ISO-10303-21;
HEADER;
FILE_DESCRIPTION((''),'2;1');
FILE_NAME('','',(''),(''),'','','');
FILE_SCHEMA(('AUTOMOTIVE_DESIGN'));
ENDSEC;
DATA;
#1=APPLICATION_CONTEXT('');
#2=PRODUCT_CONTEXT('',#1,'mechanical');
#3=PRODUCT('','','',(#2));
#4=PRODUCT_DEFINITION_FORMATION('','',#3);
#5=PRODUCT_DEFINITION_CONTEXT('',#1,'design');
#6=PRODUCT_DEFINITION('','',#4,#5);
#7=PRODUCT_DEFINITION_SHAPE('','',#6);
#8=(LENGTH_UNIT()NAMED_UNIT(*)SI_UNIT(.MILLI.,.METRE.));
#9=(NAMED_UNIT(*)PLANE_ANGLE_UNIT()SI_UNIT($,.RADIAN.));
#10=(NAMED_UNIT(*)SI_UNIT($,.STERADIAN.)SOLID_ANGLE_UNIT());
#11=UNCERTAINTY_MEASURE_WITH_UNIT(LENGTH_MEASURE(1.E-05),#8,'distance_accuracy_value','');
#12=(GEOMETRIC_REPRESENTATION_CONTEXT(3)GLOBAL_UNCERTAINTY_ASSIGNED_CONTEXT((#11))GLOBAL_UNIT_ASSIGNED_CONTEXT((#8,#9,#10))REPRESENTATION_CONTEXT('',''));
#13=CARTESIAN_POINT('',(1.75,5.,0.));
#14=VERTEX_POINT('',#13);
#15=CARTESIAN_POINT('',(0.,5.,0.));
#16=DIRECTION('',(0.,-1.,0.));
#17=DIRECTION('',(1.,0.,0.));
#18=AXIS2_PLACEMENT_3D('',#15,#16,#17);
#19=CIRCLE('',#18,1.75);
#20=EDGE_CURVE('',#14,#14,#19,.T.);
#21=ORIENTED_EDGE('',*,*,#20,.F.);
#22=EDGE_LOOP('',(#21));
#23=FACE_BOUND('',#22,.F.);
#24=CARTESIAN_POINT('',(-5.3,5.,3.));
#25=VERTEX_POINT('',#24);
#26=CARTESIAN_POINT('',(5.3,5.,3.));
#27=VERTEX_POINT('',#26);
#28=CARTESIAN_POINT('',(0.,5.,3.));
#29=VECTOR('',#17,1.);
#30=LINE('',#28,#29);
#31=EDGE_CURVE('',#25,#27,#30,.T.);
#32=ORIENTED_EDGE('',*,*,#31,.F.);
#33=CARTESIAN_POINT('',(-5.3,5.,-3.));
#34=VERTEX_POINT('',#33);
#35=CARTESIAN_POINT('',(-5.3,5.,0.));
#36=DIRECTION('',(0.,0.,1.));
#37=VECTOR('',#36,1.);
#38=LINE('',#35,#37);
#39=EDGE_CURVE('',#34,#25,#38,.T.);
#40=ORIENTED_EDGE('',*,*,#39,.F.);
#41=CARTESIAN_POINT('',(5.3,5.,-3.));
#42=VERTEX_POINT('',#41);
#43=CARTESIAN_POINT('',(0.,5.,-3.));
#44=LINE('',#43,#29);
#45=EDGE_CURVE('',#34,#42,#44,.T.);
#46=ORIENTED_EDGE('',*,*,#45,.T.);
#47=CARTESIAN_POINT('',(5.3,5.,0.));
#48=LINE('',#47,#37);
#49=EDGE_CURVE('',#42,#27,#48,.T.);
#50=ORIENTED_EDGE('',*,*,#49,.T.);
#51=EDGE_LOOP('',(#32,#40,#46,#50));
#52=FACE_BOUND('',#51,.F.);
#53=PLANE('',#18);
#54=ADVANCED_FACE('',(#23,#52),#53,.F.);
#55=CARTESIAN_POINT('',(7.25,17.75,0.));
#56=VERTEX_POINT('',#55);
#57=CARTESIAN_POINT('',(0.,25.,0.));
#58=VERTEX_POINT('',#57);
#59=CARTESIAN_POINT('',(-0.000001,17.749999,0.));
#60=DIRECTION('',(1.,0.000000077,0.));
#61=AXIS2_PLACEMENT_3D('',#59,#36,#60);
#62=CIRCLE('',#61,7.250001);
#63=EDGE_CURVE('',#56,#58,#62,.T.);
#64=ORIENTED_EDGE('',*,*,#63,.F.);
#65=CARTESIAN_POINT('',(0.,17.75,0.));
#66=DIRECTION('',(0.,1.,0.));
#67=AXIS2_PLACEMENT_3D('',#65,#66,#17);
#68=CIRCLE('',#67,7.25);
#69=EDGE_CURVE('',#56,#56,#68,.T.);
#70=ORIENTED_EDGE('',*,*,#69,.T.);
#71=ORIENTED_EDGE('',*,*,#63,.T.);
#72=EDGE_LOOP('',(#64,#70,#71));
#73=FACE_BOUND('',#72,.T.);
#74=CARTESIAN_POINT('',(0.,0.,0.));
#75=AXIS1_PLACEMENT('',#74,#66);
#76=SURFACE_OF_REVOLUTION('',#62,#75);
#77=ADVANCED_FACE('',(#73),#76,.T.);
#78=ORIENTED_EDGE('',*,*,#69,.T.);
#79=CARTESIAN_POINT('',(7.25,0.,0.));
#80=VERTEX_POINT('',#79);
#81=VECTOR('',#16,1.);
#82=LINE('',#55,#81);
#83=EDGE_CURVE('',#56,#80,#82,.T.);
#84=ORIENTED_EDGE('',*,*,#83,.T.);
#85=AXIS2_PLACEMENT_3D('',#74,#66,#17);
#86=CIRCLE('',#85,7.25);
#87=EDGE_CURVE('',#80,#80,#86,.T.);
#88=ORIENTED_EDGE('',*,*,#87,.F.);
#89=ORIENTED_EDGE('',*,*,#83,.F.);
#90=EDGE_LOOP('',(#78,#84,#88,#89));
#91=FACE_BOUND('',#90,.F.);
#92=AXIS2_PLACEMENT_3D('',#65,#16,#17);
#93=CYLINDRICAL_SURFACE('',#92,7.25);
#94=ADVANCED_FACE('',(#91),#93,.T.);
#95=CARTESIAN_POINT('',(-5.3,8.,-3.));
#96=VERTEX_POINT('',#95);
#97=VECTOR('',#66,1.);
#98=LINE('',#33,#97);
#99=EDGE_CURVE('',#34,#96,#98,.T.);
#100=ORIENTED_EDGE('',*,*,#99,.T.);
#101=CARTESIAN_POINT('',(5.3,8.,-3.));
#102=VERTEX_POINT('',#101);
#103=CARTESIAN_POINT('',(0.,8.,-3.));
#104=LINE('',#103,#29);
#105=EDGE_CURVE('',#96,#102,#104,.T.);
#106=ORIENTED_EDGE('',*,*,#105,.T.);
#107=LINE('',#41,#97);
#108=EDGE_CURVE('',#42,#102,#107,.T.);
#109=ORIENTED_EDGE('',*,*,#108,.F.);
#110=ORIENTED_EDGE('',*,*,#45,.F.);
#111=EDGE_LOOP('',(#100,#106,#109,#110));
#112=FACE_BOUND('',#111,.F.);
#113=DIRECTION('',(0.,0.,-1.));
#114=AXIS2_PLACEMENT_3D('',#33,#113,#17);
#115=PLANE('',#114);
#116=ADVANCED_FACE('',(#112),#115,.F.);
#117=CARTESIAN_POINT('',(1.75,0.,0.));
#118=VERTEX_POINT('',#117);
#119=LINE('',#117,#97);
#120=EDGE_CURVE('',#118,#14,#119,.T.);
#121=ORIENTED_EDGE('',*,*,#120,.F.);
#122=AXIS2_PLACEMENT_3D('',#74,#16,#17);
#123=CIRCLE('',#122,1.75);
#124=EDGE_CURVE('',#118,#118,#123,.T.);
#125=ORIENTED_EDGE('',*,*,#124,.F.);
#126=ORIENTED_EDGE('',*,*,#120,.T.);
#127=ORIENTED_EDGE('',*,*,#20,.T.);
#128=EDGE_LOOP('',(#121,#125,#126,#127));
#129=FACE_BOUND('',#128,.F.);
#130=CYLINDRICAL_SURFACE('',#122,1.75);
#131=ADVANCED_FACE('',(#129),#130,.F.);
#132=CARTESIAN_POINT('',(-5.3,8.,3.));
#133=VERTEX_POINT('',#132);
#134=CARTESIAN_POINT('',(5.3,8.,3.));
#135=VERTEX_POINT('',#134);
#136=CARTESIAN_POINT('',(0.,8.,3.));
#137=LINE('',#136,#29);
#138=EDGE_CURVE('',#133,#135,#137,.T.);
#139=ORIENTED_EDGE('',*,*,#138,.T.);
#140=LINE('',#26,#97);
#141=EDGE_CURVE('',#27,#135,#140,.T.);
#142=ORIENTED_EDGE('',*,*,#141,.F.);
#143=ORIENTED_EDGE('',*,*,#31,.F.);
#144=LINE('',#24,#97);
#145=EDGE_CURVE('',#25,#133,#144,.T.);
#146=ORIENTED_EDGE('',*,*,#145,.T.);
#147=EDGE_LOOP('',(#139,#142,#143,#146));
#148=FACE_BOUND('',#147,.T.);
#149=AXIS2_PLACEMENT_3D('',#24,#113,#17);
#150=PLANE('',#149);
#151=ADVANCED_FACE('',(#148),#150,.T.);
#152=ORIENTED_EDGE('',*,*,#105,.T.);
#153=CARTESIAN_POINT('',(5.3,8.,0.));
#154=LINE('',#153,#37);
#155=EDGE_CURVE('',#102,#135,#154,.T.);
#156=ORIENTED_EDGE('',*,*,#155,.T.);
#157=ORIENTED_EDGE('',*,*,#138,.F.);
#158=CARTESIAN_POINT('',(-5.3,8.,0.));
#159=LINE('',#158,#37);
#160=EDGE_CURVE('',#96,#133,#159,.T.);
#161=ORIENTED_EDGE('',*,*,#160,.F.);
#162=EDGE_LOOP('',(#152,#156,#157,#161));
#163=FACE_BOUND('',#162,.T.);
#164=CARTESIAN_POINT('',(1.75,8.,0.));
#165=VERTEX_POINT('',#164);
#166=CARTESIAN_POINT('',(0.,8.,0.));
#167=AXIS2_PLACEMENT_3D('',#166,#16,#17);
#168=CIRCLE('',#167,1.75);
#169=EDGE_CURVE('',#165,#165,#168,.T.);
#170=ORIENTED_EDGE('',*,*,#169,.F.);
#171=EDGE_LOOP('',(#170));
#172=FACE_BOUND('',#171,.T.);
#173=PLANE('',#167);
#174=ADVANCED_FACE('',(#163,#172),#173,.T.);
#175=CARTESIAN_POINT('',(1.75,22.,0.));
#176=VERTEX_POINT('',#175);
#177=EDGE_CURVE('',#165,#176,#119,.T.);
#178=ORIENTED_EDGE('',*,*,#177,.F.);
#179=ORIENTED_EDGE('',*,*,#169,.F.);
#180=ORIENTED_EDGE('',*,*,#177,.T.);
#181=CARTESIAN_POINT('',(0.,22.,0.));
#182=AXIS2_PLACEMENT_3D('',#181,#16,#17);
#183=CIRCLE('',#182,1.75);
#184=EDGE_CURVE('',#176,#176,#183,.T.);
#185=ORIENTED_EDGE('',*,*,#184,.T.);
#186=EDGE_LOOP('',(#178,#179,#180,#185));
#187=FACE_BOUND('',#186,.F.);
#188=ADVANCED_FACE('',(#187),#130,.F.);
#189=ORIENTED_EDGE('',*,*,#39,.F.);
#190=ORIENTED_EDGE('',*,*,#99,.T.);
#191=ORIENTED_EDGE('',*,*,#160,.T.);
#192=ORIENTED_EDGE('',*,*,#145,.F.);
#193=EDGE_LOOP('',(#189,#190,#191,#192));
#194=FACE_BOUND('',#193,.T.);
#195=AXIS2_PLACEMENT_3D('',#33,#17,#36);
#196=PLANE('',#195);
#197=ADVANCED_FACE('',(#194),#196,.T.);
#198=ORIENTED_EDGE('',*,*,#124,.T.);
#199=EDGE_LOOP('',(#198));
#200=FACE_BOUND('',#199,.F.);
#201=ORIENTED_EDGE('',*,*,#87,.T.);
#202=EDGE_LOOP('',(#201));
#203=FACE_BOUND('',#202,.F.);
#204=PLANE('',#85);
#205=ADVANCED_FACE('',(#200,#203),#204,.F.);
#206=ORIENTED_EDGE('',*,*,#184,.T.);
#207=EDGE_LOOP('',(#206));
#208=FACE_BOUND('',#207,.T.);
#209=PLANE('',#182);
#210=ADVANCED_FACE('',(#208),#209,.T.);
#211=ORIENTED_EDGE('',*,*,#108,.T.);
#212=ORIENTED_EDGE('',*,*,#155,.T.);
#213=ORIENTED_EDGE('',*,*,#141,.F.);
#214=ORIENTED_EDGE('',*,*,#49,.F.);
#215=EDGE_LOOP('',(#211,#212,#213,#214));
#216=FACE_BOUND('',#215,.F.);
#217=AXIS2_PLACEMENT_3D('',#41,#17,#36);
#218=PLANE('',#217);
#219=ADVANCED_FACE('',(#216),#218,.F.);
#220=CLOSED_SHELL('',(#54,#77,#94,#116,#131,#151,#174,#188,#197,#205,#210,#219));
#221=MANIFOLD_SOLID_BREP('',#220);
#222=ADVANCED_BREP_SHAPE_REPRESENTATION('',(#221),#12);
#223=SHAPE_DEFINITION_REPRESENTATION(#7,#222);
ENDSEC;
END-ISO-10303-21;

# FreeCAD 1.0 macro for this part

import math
import FreeCAD as App
import Part
import Sketcher


def add_polygon(sketch, points):
    """Adds a closed chain of lines whose ends are joined by coincident constraints."""
    first, n = sketch.GeometryCount, len(points)
    for a, b in zip(points, points[1:] + points[:1]):
        sketch.addGeometry(Part.LineSegment(App.Vector(*a, 0), App.Vector(*b, 0)), False)
    for i in range(n):
        sketch.addConstraint(Sketcher.Constraint("Coincident", first + i, 2, first + (i + 1) % n, 1))

doc = App.newDocument("Part")
body = doc.addObject("PartDesign::Body", "Body")

# Sketch on XY plane
sketch1 = body.newObject("Sketcher::SketchObject", "Sketch")
sketch1.AttachmentSupport = (doc.getObject("XY_Plane"), [""])
sketch1.MapMode = "FlatFace"
sketch1.addGeometry([
    Part.LineSegment(App.Vector(7, 0, 0), App.Vector(7, 18, 0)),
    Part.ArcOfCircle(Part.Circle(App.Vector(0, 18, 0), App.Vector(0, 0, 1), 7), math.radians(0), math.radians(90)),
    Part.LineSegment(App.Vector(0, 25, 0), App.Vector(0, 0, 0)),
    Part.LineSegment(App.Vector(0, 0, 0), App.Vector(7, 0, 0)),
], False)
sketch1.addConstraint([
    Sketcher.Constraint("Tangent", 0, 2, 1, 1),
    Sketcher.Constraint("Coincident", 1, 2, 2, 1),
    Sketcher.Constraint("Coincident", 2, 2, 3, 1),
    Sketcher.Constraint("Coincident", 3, 2, 0, 1),
    Sketcher.Constraint("Vertical", 0),
    Sketcher.Constraint("Vertical", 2),
    Sketcher.Constraint("Horizontal", 3),
    Sketcher.Constraint("Coincident", 2, 2, -1, 1),
    Sketcher.Constraint("PointOnObject", 1, 3, -2),
    Sketcher.Constraint("DistanceY", 2, 2, 2, 1, 25.0),
    Sketcher.Constraint("Radius", 1, 7.250001),
])
revolution = body.newObject("PartDesign::Revolution", "Revolution")
revolution.Profile = sketch1
revolution.ReferenceAxis = (sketch1, ["V_Axis"])
revolution.Angle = 360

# Sketch on XZ plane
sketch2 = body.newObject("Sketcher::SketchObject", "Sketch001")
sketch2.AttachmentSupport = (doc.getObject("XZ_Plane"), [""])
sketch2.MapMode = "FlatFace"
sketch2.AttachmentOffset = App.Placement(App.Vector(0, 0, -5), App.Rotation())
add_polygon(sketch2, [(-5, 3), (-5, -3), (5, -3), (5, 3)])  # lines 0-3
sketch2.addConstraint([
    Sketcher.Constraint("Vertical", 0),
    Sketcher.Constraint("Horizontal", 1),
    Sketcher.Constraint("Vertical", 2),
    Sketcher.Constraint("Horizontal", 3),
    Sketcher.Constraint("Symmetric", 0, 2, 2, 2, -1, 1),
    Sketcher.Constraint("DistanceY", 0, 2, 0, 1, 6.0),
    Sketcher.Constraint("DistanceX", 1, 1, 1, 2, 10.6),
])
pocket1 = body.newObject("PartDesign::Pocket", "Pocket")
pocket1.Profile = sketch2
pocket1.Length = 3

# Sketch on XZ plane
sketch3 = body.newObject("Sketcher::SketchObject", "Sketch002")
sketch3.AttachmentSupport = (doc.getObject("XZ_Plane"), [""])
sketch3.MapMode = "FlatFace"
sketch3.addGeometry(Part.Circle(App.Vector(0, 0, 0), App.Vector(0, 0, 1), 1.8), False)
sketch3.addConstraint([
    Sketcher.Constraint("Coincident", 0, 3, -1, 1),
    Sketcher.Constraint("Diameter", 0, 3.5),
])
pocket2 = body.newObject("PartDesign::Pocket", "Pocket001")
pocket2.Profile = sketch3
pocket2.Length = 22

doc.recompute()
